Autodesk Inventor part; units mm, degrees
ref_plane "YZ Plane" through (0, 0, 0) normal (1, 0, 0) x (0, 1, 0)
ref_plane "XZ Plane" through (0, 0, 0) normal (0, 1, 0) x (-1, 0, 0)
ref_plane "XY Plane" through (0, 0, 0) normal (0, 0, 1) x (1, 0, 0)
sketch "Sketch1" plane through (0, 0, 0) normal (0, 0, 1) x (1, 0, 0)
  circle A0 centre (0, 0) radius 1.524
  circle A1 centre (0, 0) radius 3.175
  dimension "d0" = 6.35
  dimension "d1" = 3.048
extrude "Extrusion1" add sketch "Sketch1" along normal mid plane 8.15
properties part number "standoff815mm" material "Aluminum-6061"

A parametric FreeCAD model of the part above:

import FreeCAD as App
import Part
import Sketcher
from FreeCAD import Vector
Q = App.Units.Quantity

doc = App.newDocument("Part")
body = doc.addObject("PartDesign::Body", "Body")

# Sketch on XY plane
sketch1 = doc.addObject("Sketcher::SketchObject", "Sketch")
body.addObject(sketch1)
sketch1.AttachmentSupport = (doc.XY_Plane, [""])
sketch1.MapMode = "FlatFace"
sketch1.addGeometry([
    Part.Circle(Vector(0, 0, 0), Vector(0, 0, 1), 3.2),
    Part.Circle(Vector(0, 0, 0), Vector(0, 0, 1), 1.5),
], False)
sketch1.addConstraint([
    Sketcher.Constraint("Coincident", 0, 3, -1, 1),
    Sketcher.Constraint("Coincident", 1, 3, -1, 1),
    Sketcher.Constraint("Diameter", 0, Q("0.25 in")),
    Sketcher.Constraint("Diameter", 1, Q("0.12 in")),
])
pad1 = doc.addObject("PartDesign::Pad", "Pad")
body.addObject(pad1)
pad1.Profile = sketch1
pad1.Length = 8.15
pad1.Midplane = True

doc.recompute()
